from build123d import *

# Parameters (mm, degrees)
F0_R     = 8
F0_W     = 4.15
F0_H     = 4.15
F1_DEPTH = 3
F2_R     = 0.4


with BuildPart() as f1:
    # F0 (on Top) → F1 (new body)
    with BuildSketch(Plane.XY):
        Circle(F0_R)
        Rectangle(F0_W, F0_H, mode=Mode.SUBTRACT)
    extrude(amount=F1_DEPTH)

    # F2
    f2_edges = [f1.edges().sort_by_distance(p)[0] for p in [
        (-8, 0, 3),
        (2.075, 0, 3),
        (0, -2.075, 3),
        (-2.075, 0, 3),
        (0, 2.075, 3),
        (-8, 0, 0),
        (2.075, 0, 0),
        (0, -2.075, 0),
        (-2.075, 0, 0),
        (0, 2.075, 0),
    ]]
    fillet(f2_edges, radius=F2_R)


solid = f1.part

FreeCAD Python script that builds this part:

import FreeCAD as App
import Part
import Sketcher

V = App.Vector


def edges_at(feature, points):
    """Names of the edges that pass closest to the given points."""
    edges = feature.Shape.Edges
    near = lambda p: min(range(len(edges)), key=lambda i: edges[i].distToShape(Part.Vertex(*p))[0])
    return sorted({f"Edge{near(p) + 1}" for p in points})


def add_polygon(sketch, points):
    """Adds a closed chain of lines whose ends are joined by coincident constraints."""
    first, n = sketch.GeometryCount, len(points)
    for a, b in zip(points, points[1:] + points[:1]):
        sketch.addGeometry(Part.LineSegment(App.Vector(*a, 0), App.Vector(*b, 0)), False)
    for i in range(n):
        sketch.addConstraint(Sketcher.Constraint("Coincident", first + i, 2, first + (i + 1) % n, 1))

doc = App.newDocument("Part")
body = doc.addObject("PartDesign::Body", "Body")

sketch1 = body.newObject("Sketcher::SketchObject", "Sketch")
sketch1.AttachmentSupport = (doc.getObject("XY_Plane"), [""])
sketch1.MapMode = "FlatFace"
sketch1.addGeometry(Part.Circle(V(0, 0, 0), V(0, 0, 1), 8), False)
add_polygon(sketch1, [(2.1, -2.1), (-2.1, -2.1), (-2.1, 2.1), (2.1, 2.1)])
sketch1.addConstraint([
    Sketcher.Constraint("Horizontal", 1),
    Sketcher.Constraint("Vertical", 2),
    Sketcher.Constraint("Horizontal", 3),
    Sketcher.Constraint("Vertical", 4),
    Sketcher.Constraint("Coincident", 0, 3, -1, 1),
    Sketcher.Constraint("Symmetric", 1, 2, 3, 2, -1, 1),
    Sketcher.Constraint("Equal", 3, 2),
    Sketcher.Constraint("Diameter", 0, 16.0),
    Sketcher.Constraint("DistanceX", 1, 2, 1, 1, 4.15),
])
pad1 = body.newObject("PartDesign::Pad", "Pad")
pad1.Profile = sketch1
pad1.Length = 3
doc.recompute()

fillet = body.newObject("PartDesign::Fillet", "Fillet")
fillet.Base = (pad1, edges_at(pad1, [
    (-8, 0, 3),
    (2.075, 0, 3),
    (0, -2.075, 3),
    (-2.075, 0, 3),
    (0, 2.075, 3),
    (-8, 0, 0),
    (2.075, 0, 0),
    (0, -2.075, 0),
    (-2.075, 0, 0),
    (0, 2.075, 0),
]))
fillet.Radius = 0.4

doc.recompute()
